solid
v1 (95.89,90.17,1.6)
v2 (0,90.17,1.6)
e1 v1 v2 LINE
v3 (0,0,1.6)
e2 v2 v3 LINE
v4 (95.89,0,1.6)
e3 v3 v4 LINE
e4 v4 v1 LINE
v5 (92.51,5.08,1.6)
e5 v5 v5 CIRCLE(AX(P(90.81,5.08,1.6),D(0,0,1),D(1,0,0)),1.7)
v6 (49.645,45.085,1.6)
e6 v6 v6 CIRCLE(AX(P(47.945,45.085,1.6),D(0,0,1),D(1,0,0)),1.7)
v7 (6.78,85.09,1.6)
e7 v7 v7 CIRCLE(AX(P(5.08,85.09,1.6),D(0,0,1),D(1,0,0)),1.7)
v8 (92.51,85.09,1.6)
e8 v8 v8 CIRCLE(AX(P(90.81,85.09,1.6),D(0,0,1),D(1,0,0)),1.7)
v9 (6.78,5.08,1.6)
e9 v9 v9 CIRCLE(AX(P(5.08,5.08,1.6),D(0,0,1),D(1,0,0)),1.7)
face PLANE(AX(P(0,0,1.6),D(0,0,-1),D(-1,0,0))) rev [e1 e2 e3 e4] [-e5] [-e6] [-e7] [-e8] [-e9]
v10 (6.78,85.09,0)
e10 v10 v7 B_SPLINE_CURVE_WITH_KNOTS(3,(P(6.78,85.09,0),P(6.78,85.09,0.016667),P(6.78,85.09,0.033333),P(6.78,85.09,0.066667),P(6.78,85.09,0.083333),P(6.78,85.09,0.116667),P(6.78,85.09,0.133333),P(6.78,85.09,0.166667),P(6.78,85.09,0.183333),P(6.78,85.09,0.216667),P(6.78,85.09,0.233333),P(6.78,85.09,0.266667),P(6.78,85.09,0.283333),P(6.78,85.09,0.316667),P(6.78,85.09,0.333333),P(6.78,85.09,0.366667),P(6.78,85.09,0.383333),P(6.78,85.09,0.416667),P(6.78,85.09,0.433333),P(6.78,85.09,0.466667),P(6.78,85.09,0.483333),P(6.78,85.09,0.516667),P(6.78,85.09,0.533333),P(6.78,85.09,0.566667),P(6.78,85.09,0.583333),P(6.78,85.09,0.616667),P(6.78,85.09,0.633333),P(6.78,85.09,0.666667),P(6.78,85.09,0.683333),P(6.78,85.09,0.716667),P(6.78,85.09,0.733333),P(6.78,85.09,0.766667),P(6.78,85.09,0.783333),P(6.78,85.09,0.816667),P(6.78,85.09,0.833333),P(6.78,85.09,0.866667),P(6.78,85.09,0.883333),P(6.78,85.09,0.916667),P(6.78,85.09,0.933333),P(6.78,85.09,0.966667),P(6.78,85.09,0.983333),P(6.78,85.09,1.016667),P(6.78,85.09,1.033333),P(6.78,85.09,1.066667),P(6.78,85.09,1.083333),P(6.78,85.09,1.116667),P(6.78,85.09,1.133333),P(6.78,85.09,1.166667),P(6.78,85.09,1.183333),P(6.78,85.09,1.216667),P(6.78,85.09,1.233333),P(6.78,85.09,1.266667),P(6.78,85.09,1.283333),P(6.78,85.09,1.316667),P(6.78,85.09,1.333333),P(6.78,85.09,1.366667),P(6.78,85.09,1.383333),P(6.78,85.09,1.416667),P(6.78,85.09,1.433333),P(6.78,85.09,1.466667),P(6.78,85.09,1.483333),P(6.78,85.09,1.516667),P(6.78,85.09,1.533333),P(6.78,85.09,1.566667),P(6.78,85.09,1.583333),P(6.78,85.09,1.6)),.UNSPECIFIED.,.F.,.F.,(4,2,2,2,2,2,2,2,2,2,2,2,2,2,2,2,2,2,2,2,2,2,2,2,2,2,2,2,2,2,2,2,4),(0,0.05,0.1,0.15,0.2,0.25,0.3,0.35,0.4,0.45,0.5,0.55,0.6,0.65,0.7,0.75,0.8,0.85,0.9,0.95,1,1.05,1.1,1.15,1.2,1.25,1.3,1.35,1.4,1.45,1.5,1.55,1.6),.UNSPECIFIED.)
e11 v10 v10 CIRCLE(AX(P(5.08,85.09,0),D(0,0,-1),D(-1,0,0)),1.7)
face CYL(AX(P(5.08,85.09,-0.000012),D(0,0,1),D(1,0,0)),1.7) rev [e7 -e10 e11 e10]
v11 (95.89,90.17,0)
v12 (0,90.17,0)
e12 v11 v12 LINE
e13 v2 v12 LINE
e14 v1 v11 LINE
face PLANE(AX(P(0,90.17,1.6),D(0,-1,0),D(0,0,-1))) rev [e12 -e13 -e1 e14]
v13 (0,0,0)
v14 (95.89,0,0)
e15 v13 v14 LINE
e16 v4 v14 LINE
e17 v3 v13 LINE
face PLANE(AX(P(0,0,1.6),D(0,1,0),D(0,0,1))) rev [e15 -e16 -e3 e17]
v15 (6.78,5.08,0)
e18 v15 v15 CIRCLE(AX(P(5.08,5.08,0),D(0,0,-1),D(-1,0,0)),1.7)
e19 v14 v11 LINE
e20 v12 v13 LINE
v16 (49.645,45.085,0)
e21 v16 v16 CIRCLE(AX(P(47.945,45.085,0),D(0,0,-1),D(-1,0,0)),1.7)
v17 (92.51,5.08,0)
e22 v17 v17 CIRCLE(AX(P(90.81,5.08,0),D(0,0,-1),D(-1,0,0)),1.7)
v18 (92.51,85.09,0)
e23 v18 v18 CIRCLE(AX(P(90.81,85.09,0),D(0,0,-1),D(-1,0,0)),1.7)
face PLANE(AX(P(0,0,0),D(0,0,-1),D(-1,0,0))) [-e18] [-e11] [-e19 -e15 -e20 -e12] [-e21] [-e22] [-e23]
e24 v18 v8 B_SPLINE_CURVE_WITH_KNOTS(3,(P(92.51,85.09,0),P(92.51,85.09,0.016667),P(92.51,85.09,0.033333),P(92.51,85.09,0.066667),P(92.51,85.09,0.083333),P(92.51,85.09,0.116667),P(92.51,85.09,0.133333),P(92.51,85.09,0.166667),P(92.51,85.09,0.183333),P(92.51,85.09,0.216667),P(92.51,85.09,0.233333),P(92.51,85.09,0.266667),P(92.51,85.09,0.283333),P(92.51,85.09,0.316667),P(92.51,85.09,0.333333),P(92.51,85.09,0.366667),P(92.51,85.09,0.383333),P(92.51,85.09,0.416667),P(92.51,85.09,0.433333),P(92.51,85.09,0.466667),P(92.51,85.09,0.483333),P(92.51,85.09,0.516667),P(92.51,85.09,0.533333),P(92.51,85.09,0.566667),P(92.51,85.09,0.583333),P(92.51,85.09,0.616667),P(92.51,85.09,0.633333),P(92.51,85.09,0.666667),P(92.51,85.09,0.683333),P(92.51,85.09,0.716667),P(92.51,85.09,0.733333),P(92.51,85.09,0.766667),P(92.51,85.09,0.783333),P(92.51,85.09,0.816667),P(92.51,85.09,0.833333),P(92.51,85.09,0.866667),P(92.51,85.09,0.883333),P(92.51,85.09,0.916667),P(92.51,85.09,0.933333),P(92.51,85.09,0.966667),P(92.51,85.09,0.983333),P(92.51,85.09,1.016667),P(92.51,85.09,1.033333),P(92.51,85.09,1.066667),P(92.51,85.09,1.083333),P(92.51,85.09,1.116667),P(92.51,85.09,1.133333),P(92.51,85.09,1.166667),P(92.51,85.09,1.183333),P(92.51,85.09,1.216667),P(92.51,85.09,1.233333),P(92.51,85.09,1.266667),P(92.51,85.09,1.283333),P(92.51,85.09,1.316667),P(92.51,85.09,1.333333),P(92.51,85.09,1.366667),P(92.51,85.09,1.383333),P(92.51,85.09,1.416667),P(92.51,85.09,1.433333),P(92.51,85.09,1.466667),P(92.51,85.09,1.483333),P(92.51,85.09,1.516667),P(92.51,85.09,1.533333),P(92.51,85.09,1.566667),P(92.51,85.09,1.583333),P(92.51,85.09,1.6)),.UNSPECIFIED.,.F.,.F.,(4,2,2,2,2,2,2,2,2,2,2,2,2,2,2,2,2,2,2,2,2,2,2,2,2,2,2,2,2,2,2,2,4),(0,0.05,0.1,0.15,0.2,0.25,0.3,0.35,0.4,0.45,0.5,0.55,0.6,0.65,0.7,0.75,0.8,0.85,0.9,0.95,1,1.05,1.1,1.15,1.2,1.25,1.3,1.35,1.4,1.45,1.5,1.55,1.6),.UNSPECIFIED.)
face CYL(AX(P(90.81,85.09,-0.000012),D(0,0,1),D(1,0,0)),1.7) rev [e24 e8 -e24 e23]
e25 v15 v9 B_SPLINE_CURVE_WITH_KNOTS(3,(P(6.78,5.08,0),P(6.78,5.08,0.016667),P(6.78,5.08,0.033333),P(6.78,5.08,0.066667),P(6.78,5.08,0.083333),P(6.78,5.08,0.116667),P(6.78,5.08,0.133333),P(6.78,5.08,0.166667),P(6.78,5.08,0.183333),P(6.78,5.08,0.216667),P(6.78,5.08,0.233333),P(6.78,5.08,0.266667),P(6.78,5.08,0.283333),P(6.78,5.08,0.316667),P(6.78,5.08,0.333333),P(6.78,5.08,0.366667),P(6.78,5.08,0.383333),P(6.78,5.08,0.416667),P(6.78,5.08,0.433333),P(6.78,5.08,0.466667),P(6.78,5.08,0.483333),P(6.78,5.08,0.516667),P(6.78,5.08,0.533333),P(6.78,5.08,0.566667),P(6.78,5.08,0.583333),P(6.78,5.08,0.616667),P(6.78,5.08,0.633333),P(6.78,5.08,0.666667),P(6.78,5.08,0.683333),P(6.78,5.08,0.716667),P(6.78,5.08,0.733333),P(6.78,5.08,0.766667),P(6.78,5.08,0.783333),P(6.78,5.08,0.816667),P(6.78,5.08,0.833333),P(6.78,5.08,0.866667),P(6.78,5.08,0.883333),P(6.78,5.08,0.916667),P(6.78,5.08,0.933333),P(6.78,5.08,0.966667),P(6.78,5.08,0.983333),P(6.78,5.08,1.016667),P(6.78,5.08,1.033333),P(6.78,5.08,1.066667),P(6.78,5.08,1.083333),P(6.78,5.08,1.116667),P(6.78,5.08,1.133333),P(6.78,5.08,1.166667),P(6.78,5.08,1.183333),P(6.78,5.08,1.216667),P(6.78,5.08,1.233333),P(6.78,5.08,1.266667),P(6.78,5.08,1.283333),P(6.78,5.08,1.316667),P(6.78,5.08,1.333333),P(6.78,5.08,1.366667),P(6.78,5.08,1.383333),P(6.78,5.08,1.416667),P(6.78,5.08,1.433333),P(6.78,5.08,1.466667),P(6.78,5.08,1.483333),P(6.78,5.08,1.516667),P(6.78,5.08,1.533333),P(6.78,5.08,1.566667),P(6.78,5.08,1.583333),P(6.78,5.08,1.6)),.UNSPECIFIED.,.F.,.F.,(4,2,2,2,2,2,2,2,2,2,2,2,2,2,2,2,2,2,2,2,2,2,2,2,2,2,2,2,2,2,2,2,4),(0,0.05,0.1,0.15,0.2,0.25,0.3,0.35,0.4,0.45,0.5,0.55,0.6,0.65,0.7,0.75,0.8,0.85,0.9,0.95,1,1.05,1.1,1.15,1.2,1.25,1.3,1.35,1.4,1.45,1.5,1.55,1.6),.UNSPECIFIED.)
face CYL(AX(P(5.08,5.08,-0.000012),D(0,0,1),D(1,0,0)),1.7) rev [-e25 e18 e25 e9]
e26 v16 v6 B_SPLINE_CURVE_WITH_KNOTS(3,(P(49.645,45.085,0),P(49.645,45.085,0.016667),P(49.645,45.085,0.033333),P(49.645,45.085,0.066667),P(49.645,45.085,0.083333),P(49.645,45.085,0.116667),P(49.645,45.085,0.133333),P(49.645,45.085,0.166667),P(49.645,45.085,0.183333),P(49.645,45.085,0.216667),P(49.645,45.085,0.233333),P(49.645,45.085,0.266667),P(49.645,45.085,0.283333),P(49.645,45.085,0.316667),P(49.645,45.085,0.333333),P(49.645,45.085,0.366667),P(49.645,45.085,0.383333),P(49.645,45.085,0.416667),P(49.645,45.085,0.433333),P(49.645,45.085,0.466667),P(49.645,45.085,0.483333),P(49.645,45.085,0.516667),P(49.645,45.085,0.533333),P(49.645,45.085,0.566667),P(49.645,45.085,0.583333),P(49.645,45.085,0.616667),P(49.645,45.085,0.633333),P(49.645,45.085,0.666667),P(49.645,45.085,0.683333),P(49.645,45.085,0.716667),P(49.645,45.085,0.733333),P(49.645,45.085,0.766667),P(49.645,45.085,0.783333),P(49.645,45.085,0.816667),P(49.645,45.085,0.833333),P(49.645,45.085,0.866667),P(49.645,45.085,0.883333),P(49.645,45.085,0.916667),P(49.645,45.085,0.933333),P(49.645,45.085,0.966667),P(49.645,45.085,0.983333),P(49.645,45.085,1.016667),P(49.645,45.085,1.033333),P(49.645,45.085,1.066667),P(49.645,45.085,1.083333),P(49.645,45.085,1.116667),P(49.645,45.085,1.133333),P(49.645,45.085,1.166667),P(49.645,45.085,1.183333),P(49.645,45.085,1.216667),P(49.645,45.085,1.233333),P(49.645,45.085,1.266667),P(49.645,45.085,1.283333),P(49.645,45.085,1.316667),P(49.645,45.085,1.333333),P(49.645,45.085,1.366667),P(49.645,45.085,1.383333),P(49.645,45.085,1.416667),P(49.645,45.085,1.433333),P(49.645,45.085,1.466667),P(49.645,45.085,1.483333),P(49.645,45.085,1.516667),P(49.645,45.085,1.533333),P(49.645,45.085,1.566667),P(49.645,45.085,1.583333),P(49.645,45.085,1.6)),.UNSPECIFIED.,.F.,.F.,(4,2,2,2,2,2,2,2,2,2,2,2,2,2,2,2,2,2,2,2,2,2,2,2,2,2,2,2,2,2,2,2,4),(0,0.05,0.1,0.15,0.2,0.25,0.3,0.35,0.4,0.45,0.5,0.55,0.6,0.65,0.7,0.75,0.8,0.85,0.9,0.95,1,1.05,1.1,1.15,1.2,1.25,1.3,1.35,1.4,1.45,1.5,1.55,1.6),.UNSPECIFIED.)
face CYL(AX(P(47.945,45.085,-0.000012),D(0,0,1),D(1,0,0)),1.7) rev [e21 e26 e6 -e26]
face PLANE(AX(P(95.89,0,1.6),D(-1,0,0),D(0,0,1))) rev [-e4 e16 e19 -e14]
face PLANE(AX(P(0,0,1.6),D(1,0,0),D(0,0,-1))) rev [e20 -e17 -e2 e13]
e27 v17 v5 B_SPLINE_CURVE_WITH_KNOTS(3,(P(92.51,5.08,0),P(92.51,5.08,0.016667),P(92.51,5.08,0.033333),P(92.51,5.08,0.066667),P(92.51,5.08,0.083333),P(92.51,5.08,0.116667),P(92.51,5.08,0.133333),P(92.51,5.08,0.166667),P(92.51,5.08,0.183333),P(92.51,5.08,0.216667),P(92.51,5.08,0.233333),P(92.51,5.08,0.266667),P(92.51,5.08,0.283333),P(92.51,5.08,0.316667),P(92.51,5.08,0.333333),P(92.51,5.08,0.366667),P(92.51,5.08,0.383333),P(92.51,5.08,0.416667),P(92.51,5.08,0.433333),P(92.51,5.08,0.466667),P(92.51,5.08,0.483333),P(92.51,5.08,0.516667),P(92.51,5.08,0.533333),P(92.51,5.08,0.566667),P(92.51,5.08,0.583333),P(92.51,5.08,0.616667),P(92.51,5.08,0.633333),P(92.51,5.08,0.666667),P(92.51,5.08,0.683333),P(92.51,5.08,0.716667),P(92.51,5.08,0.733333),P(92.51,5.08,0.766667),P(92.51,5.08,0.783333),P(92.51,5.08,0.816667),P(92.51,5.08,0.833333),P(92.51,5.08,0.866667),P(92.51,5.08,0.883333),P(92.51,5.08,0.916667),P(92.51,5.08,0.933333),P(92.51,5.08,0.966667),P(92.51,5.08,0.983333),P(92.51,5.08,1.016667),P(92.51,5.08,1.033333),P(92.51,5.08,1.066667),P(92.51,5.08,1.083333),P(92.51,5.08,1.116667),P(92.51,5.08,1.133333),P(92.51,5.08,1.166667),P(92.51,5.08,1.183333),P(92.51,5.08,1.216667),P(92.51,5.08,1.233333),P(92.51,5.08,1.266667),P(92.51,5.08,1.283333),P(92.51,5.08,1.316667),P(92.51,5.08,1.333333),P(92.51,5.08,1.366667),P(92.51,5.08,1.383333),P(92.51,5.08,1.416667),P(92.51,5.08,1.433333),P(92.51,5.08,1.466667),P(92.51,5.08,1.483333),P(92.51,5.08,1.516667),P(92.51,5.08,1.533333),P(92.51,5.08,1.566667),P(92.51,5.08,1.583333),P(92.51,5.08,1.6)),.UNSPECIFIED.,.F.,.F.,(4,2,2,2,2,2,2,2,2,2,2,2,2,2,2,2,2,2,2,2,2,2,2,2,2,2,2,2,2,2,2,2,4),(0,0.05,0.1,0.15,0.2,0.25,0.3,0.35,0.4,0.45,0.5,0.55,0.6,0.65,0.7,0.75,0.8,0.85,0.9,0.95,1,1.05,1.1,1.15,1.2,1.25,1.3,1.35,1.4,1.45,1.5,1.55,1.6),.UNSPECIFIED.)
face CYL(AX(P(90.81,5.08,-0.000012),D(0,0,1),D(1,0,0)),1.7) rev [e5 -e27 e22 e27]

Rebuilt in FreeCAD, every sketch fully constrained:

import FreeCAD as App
import Part
import Sketcher
from FreeCAD import Vector
Q = App.Units.Quantity

doc = App.newDocument("Part")
body = doc.addObject("PartDesign::Body", "Body")

sketch1 = body.newObject("Sketcher::SketchObject", "Sketch")
sketch1.AttachmentSupport = (doc.getObject("XY_Plane"), [""])
sketch1.MapMode = "FlatFace"
sketch1.addGeometry([
    Part.LineSegment(Vector(0, 90, 0), Vector(0, 0, 0)),
    Part.LineSegment(Vector(0, 0, 0), Vector(96, 0, 0)),
    Part.LineSegment(Vector(96, 0, 0), Vector(96, 90, 0)),
    Part.LineSegment(Vector(96, 90, 0), Vector(0, 90, 0)),
], False)
sketch1.addConstraint([
    Sketcher.Constraint("Coincident", 0, 2, 1, 1),
    Sketcher.Constraint("Coincident", 1, 2, 2, 1),
    Sketcher.Constraint("Coincident", 2, 2, 3, 1),
    Sketcher.Constraint("Coincident", 3, 2, 0, 1),
    Sketcher.Constraint("Vertical", 0),
    Sketcher.Constraint("Horizontal", 1),
    Sketcher.Constraint("Vertical", 2),
    Sketcher.Constraint("Horizontal", 3),
    Sketcher.Constraint("Coincident", 0, 2, -1, 1),
    Sketcher.Constraint("DistanceX", 1, 1, 1, 2, Q("95.89 mm")),
    Sketcher.Constraint("DistanceY", 0, 2, 0, 1, Q("90.17 mm")),
])
pad1 = body.newObject("PartDesign::Pad", "Pad")
pad1.Profile = sketch1
pad1.Length = 1.6

sketch2 = body.newObject("Sketcher::SketchObject", "Sketch001")
sketch2.AttachmentSupport = (doc.getObject("XY_Plane"), [""])
sketch2.MapMode = "FlatFace"
sketch2.addGeometry([
    Part.Circle(Vector(5.1, 5.1, 0), Vector(0, 0, 1), 1.7),
    Part.Circle(Vector(90.8, 5.1, 0), Vector(0, 0, 1), 1.7),
    Part.Circle(Vector(5.1, 85.1, 0), Vector(0, 0, 1), 1.7),
    Part.Circle(Vector(90.8, 85.1, 0), Vector(0, 0, 1), 1.7),
    Part.Circle(Vector(47.9, 45.1, 0), Vector(0, 0, 1), 1.7),
], False)
sketch2.addConstraint([
    Sketcher.Constraint("Equal", 0, 1),
    Sketcher.Constraint("Equal", 1, 2),
    Sketcher.Constraint("Equal", 2, 3),
    Sketcher.Constraint("Equal", 3, 4),
    Sketcher.Constraint("Horizontal", 0, 3, 1, 3),
    Sketcher.Constraint("Horizontal", 2, 3, 3, 3),
    Sketcher.Constraint("Vertical", 0, 3, 2, 3),
    Sketcher.Constraint("Vertical", 1, 3, 3, 3),
    Sketcher.Constraint("Diameter", 0, Q("3.4 mm")),
    Sketcher.Constraint("DistanceX", -1, 1, 0, 3, Q("5.08 mm")),
    Sketcher.Constraint("DistanceY", -1, 1, 0, 3, Q("5.08 mm")),
    Sketcher.Constraint("DistanceX", -1, 1, 1, 3, Q("90.81 mm")),
    Sketcher.Constraint("DistanceY", -1, 1, 2, 3, Q("85.09 mm")),
    Sketcher.Constraint("DistanceX", -1, 1, 4, 3, Q("47.945 mm")),
    Sketcher.Constraint("DistanceY", -1, 1, 4, 3, Q("45.085 mm")),
])
pocket1 = body.newObject("PartDesign::Pocket", "Pocket")
pocket1.Profile = sketch2
pocket1.Type = "ThroughAll"
pocket1.Midplane = True

doc.recompute()
